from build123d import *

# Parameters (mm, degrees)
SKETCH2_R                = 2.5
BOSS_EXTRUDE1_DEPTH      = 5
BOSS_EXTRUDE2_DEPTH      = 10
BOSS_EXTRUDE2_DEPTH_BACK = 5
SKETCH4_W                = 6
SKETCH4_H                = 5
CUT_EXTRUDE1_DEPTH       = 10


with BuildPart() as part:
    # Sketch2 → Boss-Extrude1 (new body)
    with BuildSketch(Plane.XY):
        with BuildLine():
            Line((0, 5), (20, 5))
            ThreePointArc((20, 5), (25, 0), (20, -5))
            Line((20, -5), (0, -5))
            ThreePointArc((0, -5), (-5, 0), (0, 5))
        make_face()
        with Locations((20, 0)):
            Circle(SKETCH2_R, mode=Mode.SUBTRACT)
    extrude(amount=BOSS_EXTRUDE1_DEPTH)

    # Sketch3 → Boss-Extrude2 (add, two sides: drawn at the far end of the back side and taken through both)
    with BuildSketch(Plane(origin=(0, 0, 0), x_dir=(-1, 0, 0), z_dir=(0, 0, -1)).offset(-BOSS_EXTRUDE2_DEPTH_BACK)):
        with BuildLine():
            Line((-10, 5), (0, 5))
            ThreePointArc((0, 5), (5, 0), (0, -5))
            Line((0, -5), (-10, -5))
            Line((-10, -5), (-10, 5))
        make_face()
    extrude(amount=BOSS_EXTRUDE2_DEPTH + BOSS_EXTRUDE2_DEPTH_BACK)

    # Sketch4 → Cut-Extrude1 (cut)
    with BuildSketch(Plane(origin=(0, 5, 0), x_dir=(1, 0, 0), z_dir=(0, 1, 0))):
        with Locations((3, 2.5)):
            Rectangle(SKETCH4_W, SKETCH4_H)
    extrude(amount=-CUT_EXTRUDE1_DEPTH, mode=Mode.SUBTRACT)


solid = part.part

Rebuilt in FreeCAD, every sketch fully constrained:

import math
import FreeCAD as App
import Part
import Sketcher


def add_polygon(sketch, points):
    """Adds a closed chain of lines whose ends are joined by coincident constraints."""
    first, n = sketch.GeometryCount, len(points)
    for a, b in zip(points, points[1:] + points[:1]):
        sketch.addGeometry(Part.LineSegment(App.Vector(*a, 0), App.Vector(*b, 0)), False)
    for i in range(n):
        sketch.addConstraint(Sketcher.Constraint("Coincident", first + i, 2, first + (i + 1) % n, 1))

doc = App.newDocument("Part")
body = doc.addObject("PartDesign::Body", "Body")

# Sketch on XY plane
sketch1 = body.newObject("Sketcher::SketchObject", "Sketch")
sketch1.AttachmentSupport = (doc.getObject("XY_Plane"), [""])
sketch1.MapMode = "FlatFace"
sketch1.addGeometry([
    Part.LineSegment(App.Vector(20, 5, 0), App.Vector(0, 5, 0)),  # 0
    Part.ArcOfCircle(Part.Circle(App.Vector(0, 0, 0), App.Vector(0, 0, 1), 5), math.radians(90), math.radians(270)),  # 1
    Part.LineSegment(App.Vector(0, -5, 0), App.Vector(20, -5, 0)),  # 2
    Part.ArcOfCircle(Part.Circle(App.Vector(20, 0, 0), App.Vector(0, 0, 1), 5), math.radians(-90), math.radians(90)),  # 3
    Part.Circle(App.Vector(20, 0, 0), App.Vector(0, 0, 1), 2.5),  # 4
], False)
sketch1.addConstraint([
    Sketcher.Constraint("Tangent", 0, 2, 1, 1),
    Sketcher.Constraint("Tangent", 1, 2, 2, 1),
    Sketcher.Constraint("Tangent", 2, 2, 3, 1),
    Sketcher.Constraint("Tangent", 3, 2, 0, 1),
    Sketcher.Constraint("Horizontal", 0),
    Sketcher.Constraint("Horizontal", 2),
    Sketcher.Constraint("Coincident", 1, 3, -1, 1),
    Sketcher.Constraint("Coincident", 4, 3, 3, 3),
    Sketcher.Constraint("Diameter", 4, 5.0),
    Sketcher.Constraint("Radius", 1, 5.0),
    Sketcher.Constraint("DistanceX", 0, 2, 0, 1, 20.0),
])
pad1 = body.newObject("PartDesign::Pad", "Pad")
pad1.Profile = sketch1
pad1.Length = 5

# Sketch on XY plane
sketch2 = body.newObject("Sketcher::SketchObject", "Sketch001")
sketch2.AttachmentSupport = (doc.getObject("XY_Plane"), [""])
sketch2.MapMode = "FlatFace"
sketch2.addGeometry([
    Part.LineSegment(App.Vector(0, 5, 0), App.Vector(10, 5, 0)),
    Part.LineSegment(App.Vector(10, 5, 0), App.Vector(10, -5, 0)),
    Part.LineSegment(App.Vector(10, -5, 0), App.Vector(0, -5, 0)),
    Part.ArcOfCircle(Part.Circle(App.Vector(0, 0, 0), App.Vector(0, 0, 1), 5), math.radians(90), math.radians(270)),
], False)
sketch2.addConstraint([
    Sketcher.Constraint("Coincident", 0, 2, 1, 1),
    Sketcher.Constraint("Coincident", 1, 2, 2, 1),
    Sketcher.Constraint("Tangent", 2, 2, 3, 2),
    Sketcher.Constraint("Tangent", 3, 1, 0, 1),
    Sketcher.Constraint("Horizontal", 0),
    Sketcher.Constraint("Vertical", 1),
    Sketcher.Constraint("Horizontal", 2),
    Sketcher.Constraint("Coincident", 3, 3, -1, 1),
    Sketcher.Constraint("Equal", 2, 1),
    Sketcher.Constraint("Radius", 3, 5.0),
])
pad2 = body.newObject("PartDesign::Pad", "Pad001")
pad2.Profile = sketch2
pad2.Type = "TwoLengths"
pad2.Length = 10
pad2.Length2 = 5
pad2.Reversed = True

# Sketch on XZ plane
sketch3 = body.newObject("Sketcher::SketchObject", "Sketch002")
sketch3.AttachmentSupport = (doc.getObject("XZ_Plane"), [""])
sketch3.MapMode = "FlatFace"
sketch3.AttachmentOffset = App.Placement(App.Vector(0, 0, -5), App.Rotation())
add_polygon(sketch3, [(0, -5), (0, 0), (6, 0), (6, -5)])  # lines 0-3
sketch3.addConstraint([
    Sketcher.Constraint("Vertical", 0),
    Sketcher.Constraint("Horizontal", 1),
    Sketcher.Constraint("Vertical", 2),
    Sketcher.Constraint("Horizontal", 3),
    Sketcher.Constraint("Coincident", 0, 2, -1, 1),
    Sketcher.Constraint("DistanceX", 1, 1, 1, 2, 6.0),
    Sketcher.Constraint("DistanceY", 0, 1, 0, 2, 5.0),
])
pocket1 = body.newObject("PartDesign::Pocket", "Pocket")
pocket1.Profile = sketch3
pocket1.Length = 10
pocket1.Reversed = True

doc.recompute()
